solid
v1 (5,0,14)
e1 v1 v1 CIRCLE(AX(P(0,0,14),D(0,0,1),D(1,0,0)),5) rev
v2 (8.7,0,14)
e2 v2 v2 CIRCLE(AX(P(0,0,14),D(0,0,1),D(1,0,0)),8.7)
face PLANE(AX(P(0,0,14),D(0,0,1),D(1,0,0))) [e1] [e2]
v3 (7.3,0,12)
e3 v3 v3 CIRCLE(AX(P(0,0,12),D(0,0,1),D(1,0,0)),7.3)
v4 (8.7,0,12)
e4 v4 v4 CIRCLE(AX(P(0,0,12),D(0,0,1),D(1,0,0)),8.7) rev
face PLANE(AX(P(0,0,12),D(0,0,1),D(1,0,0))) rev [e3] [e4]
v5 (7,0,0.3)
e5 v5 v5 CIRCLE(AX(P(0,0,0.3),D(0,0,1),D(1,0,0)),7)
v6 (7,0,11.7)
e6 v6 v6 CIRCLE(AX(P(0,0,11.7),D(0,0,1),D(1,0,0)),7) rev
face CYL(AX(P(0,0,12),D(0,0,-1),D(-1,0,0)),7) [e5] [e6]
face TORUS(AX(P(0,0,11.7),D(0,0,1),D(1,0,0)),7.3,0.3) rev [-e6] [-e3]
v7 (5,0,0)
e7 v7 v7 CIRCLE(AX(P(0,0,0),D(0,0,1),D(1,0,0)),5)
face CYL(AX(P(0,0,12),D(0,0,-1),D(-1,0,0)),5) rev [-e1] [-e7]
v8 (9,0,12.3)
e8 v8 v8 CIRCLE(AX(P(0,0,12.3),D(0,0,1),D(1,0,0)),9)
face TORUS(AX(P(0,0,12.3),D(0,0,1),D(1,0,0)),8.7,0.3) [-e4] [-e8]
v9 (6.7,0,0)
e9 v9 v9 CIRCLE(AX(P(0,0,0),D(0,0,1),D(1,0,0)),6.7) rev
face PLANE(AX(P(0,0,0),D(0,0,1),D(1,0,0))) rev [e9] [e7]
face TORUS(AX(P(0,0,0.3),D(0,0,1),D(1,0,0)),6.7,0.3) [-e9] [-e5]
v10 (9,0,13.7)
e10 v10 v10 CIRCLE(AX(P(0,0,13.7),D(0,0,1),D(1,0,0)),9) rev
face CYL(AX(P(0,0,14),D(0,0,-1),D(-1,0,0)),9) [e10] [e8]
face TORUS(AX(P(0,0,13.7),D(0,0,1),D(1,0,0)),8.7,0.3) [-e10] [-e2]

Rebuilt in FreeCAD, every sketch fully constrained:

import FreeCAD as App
import Part
import Sketcher
Q = App.Units.Quantity


def edges_at(feature, points):
    """Names of the edges that pass closest to the given points."""
    edges = feature.Shape.Edges
    near = lambda p: min(range(len(edges)), key=lambda i: edges[i].distToShape(Part.Vertex(*p))[0])
    return sorted({f"Edge{near(p) + 1}" for p in points})

doc = App.newDocument("Part")
body = doc.addObject("PartDesign::Body", "Body")

# Sketch on XY plane
sketch1 = body.newObject("Sketcher::SketchObject", "Sketch")
sketch1.AttachmentSupport = (doc.getObject("XY_Plane"), [""])
sketch1.MapMode = "FlatFace"
sketch1.addGeometry([
    Part.Circle(App.Vector(0, 0, 0), App.Vector(0, 0, 1), 7),
    Part.Circle(App.Vector(0, 0, 0), App.Vector(0, 0, 1), 5),
], False)
sketch1.addConstraint([
    Sketcher.Constraint("Coincident", 0, 3, -1, 1),
    Sketcher.Constraint("Coincident", 1, 3, -1, 1),
    Sketcher.Constraint("Diameter", 0, Q("14 mm")),
    Sketcher.Constraint("Diameter", 1, Q("10 mm")),
])
pad1 = body.newObject("PartDesign::Pad", "Pad")
pad1.Profile = sketch1
pad1.Length = 12

# Sketch on XY plane
sketch2 = body.newObject("Sketcher::SketchObject", "Sketch001")
sketch2.AttachmentSupport = (doc.getObject("XY_Plane"), [""])
sketch2.MapMode = "FlatFace"
sketch2.AttachmentOffset = App.Placement(App.Vector(0, 0, 12), App.Rotation())
sketch2.addGeometry([
    Part.Circle(App.Vector(0, 0, 0), App.Vector(0, 0, 1), 9),
    Part.Circle(App.Vector(0, 0, 0), App.Vector(0, 0, 1), 5),
], False)
sketch2.addConstraint([
    Sketcher.Constraint("Coincident", 0, 3, -1, 1),
    Sketcher.Constraint("Coincident", 1, 3, -1, 1),
    Sketcher.Constraint("Diameter", 0, Q("18 mm")),
    Sketcher.Constraint("Diameter", 1, Q("10 mm")),
])
pad2 = body.newObject("PartDesign::Pad", "Pad001")
pad2.Profile = sketch2
pad2.Length = 2
doc.recompute()

fillet = body.newObject("PartDesign::Fillet", "Fillet")
fillet.Base = (pad2, edges_at(pad2, [
    (-9, 0, 12),
    (-9, 0, 14),
    (-7, 0, 0),
    (-7, 0, 12),
]))
fillet.Radius = 0.3

doc.recompute()
